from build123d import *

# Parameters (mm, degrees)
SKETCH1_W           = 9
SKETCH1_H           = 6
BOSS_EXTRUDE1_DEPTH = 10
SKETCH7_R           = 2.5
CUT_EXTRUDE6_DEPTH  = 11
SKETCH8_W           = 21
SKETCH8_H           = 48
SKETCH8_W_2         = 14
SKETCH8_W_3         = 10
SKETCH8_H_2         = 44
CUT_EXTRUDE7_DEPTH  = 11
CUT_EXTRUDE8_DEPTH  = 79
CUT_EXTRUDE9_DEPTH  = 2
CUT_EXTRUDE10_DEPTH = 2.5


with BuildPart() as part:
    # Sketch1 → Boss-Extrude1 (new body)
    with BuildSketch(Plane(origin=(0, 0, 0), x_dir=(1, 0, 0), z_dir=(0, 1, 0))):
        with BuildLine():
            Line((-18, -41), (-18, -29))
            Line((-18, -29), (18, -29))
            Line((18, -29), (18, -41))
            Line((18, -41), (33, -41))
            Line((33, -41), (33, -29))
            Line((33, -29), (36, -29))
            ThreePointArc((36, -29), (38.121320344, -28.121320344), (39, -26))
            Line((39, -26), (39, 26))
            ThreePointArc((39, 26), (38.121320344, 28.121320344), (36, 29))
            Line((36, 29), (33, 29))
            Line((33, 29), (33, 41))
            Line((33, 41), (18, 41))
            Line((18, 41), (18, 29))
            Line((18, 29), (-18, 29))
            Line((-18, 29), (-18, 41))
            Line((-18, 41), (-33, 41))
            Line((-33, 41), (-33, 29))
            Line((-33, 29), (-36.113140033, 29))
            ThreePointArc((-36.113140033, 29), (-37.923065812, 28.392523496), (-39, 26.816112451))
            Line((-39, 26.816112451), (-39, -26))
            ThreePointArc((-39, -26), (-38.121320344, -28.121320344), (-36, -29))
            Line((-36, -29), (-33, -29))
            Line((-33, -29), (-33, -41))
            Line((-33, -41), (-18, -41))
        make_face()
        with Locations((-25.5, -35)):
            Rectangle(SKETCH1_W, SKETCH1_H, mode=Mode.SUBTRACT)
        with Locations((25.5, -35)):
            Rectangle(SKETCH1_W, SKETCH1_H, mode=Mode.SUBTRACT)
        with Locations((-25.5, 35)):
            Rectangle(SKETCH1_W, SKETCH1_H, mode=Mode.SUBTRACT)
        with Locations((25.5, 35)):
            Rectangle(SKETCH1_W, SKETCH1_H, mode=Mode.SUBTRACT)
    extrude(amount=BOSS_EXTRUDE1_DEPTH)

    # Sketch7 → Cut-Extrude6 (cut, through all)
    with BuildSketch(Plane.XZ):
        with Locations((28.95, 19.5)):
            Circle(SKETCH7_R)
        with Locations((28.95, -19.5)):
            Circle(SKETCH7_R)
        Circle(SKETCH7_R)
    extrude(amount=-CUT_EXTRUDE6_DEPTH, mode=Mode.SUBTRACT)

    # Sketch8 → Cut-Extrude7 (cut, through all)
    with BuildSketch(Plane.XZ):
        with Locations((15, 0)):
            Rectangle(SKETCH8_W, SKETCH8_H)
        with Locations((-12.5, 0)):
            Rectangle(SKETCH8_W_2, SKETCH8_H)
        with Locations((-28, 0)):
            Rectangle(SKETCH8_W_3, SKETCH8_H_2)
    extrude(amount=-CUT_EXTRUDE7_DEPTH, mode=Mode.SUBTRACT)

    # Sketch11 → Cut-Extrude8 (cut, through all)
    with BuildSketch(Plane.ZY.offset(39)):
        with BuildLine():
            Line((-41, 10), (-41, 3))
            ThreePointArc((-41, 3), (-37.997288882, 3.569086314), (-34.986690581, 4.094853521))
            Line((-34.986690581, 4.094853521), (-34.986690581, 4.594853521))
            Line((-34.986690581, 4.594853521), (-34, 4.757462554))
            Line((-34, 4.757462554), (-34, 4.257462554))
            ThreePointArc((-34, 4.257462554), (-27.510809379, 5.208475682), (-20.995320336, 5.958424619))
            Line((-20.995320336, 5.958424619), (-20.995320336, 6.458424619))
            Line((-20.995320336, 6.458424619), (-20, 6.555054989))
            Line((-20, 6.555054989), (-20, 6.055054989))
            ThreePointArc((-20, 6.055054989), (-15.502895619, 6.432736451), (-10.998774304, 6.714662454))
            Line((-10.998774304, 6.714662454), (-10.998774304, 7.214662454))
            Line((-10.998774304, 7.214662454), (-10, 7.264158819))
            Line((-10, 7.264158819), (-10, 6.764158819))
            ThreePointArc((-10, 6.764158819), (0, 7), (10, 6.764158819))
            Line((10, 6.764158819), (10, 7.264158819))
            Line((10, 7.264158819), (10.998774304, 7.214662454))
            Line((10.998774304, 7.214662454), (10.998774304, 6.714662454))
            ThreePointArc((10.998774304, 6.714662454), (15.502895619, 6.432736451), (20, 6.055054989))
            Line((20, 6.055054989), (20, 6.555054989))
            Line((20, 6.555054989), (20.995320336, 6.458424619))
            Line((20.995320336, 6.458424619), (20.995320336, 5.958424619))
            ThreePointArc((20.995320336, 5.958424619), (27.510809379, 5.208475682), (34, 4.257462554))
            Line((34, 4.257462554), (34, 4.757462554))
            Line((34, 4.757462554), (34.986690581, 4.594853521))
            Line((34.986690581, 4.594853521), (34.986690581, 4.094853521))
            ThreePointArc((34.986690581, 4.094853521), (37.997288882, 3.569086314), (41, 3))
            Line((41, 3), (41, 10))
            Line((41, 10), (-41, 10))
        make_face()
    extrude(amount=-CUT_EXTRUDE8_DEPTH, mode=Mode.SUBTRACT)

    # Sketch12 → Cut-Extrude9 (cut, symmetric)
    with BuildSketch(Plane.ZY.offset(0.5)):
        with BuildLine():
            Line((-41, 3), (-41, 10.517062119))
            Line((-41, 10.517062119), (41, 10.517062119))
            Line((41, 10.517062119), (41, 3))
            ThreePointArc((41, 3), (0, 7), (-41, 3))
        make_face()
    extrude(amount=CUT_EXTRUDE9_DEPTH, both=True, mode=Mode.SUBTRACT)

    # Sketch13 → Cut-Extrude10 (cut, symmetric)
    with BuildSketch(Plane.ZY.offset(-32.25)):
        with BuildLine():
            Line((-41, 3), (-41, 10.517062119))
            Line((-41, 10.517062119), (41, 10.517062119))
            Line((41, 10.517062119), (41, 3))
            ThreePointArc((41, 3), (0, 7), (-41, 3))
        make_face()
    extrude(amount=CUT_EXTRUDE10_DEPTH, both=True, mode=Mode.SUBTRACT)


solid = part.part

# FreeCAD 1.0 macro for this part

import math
import FreeCAD as App
import Part
import Sketcher
Q = App.Units.Quantity


def add_polygon(sketch, points):
    """Adds a closed chain of lines whose ends are joined by coincident constraints."""
    first, n = sketch.GeometryCount, len(points)
    for a, b in zip(points, points[1:] + points[:1]):
        sketch.addGeometry(Part.LineSegment(App.Vector(*a, 0), App.Vector(*b, 0)), False)
    for i in range(n):
        sketch.addConstraint(Sketcher.Constraint("Coincident", first + i, 2, first + (i + 1) % n, 1))

doc = App.newDocument("Part")
params = doc.addObject("Spreadsheet::Sheet", "Params")
for row, (alias, value) in enumerate([
    ("sketch1_radius", "3 mm"),
    ("sketch1_width", "36 mm"),
    ("sketch1_width2", "15 mm"),
    ("sketch1_width3", "3 mm"),
    ("sketch1_width4", "9 mm"),
    ("pad1_length", "10 mm"),
    ("sketch2_diameter", "5 mm"),
    ("sketch3_width", "21 mm"),
    ("sketch3_width2", "14 mm"),
    ("sketch3_width3", "10 mm"),
    ("sketch3_height", "48 mm"),
    ("sketch3_height2", "44 mm"),
    ("sketch4_width", "7 mm"),
    ("sketch4_height", "82 mm"),
    ("sketch4_length", "1 mm"),
    ("sketch4_width2", "0.5 mm"),
    ("sketch5_height", "82 mm"),
    ("pocket4_length", "4 mm"),
    ("sketch6_height", "82 mm"),
    ("pocket5_length", "5 mm"),
], start=1):
    params.set(f"A{row}", alias)
    params.set(f"B{row}", "=" + value)
    params.setAlias(f"B{row}", alias)

body = doc.addObject("PartDesign::Body", "Body")

# Sketch on XZ plane
sketch1 = body.newObject("Sketcher::SketchObject", "Sketch")
sketch1.AttachmentSupport = (doc.getObject("XZ_Plane"), [""])
sketch1.MapMode = "FlatFace"
sketch1.addGeometry(Part.LineSegment(App.Vector(-18, 41, 0), App.Vector(-18, 29, 0)), False)  # 0
sketch1.addGeometry(Part.LineSegment(App.Vector(-18, 29, 0), App.Vector(18, 29, 0)), False)  # 1
sketch1.addGeometry(Part.LineSegment(App.Vector(18, 29, 0), App.Vector(18, 41, 0)), False)  # 2
sketch1.addGeometry(Part.LineSegment(App.Vector(18, 41, 0), App.Vector(33, 41, 0)), False)  # 3
sketch1.addGeometry(Part.LineSegment(App.Vector(33, 41, 0), App.Vector(33, 29, 0)), False)  # 4
sketch1.addGeometry(Part.LineSegment(App.Vector(33, 29, 0), App.Vector(36, 29, 0)), False)  # 5
sketch1.addGeometry(Part.ArcOfCircle(Part.Circle(App.Vector(36, 26, 0), App.Vector(0, 0, 1), 3), math.radians(0), math.radians(90)), False)  # 6
sketch1.addGeometry(Part.LineSegment(App.Vector(39, 26, 0), App.Vector(39, -26, 0)), False)  # 7
sketch1.addGeometry(Part.ArcOfCircle(Part.Circle(App.Vector(36, -26, 0), App.Vector(0, 0, 1), 3), math.radians(-90), math.radians(0)), False)  # 8
sketch1.addGeometry(Part.LineSegment(App.Vector(36, -29, 0), App.Vector(33, -29, 0)), False)  # 9
sketch1.addGeometry(Part.LineSegment(App.Vector(33, -29, 0), App.Vector(33, -41, 0)), False)  # 10
sketch1.addGeometry(Part.LineSegment(App.Vector(33, -41, 0), App.Vector(18, -41, 0)), False)  # 11
sketch1.addGeometry(Part.LineSegment(App.Vector(18, -41, 0), App.Vector(18, -29, 0)), False)  # 12
sketch1.addGeometry(Part.LineSegment(App.Vector(18, -29, 0), App.Vector(-18, -29, 0)), False)  # 13
sketch1.addGeometry(Part.LineSegment(App.Vector(-18, -29, 0), App.Vector(-18, -41, 0)), False)  # 14
sketch1.addGeometry(Part.LineSegment(App.Vector(-18, -41, 0), App.Vector(-33, -41, 0)), False)  # 15
sketch1.addGeometry(Part.LineSegment(App.Vector(-33, -41, 0), App.Vector(-33, -29, 0)), False)  # 16
sketch1.addGeometry(Part.LineSegment(App.Vector(-33, -29, 0), App.Vector(-36.1, -29, 0)), False)  # 17
sketch1.addGeometry(Part.ArcOfCircle(Part.Circle(App.Vector(-36.1, -26, 0), App.Vector(0, 0, 1), 3), math.radians(-164), math.radians(-90)), False)  # 18
sketch1.addGeometry(Part.LineSegment(App.Vector(-39, -26.8, 0), App.Vector(-39, 26, 0)), False)  # 19
sketch1.addGeometry(Part.ArcOfCircle(Part.Circle(App.Vector(-36, 26, 0), App.Vector(0, 0, 1), 3), math.radians(90), math.radians(180)), False)  # 20
sketch1.addGeometry(Part.LineSegment(App.Vector(-36, 29, 0), App.Vector(-33, 29, 0)), False)  # 21
sketch1.addGeometry(Part.LineSegment(App.Vector(-33, 29, 0), App.Vector(-33, 41, 0)), False)  # 22
sketch1.addGeometry(Part.LineSegment(App.Vector(-33, 41, 0), App.Vector(-18, 41, 0)), False)  # 23
add_polygon(sketch1, [(-21, 38), (-30, 38), (-30, 32), (-21, 32)])  # lines 24-27
add_polygon(sketch1, [(30, 38), (21, 38), (21, 32), (30, 32)])  # lines 28-31
add_polygon(sketch1, [(-21, -32), (-30, -32), (-30, -38), (-21, -38)])  # lines 32-35
add_polygon(sketch1, [(30, -32), (21, -32), (21, -38), (30, -38)])  # lines 36-39
sketch1.addConstraint(Sketcher.Constraint("Coincident", 0, 2, 1, 1))
sketch1.addConstraint(Sketcher.Constraint("Coincident", 1, 2, 2, 1))
sketch1.addConstraint(Sketcher.Constraint("Coincident", 2, 2, 3, 1))
sketch1.addConstraint(Sketcher.Constraint("Coincident", 3, 2, 4, 1))
sketch1.addConstraint(Sketcher.Constraint("Coincident", 4, 2, 5, 1))
sketch1.addConstraint(Sketcher.Constraint("Tangent", 5, 2, 6, 2))
sketch1.addConstraint(Sketcher.Constraint("Tangent", 6, 1, 7, 1))
sketch1.addConstraint(Sketcher.Constraint("Tangent", 7, 2, 8, 2))
sketch1.addConstraint(Sketcher.Constraint("Tangent", 8, 1, 9, 1))
sketch1.addConstraint(Sketcher.Constraint("Coincident", 9, 2, 10, 1))
sketch1.addConstraint(Sketcher.Constraint("Coincident", 10, 2, 11, 1))
sketch1.addConstraint(Sketcher.Constraint("Coincident", 11, 2, 12, 1))
sketch1.addConstraint(Sketcher.Constraint("Coincident", 12, 2, 13, 1))
sketch1.addConstraint(Sketcher.Constraint("Coincident", 13, 2, 14, 1))
sketch1.addConstraint(Sketcher.Constraint("Coincident", 14, 2, 15, 1))
sketch1.addConstraint(Sketcher.Constraint("Coincident", 15, 2, 16, 1))
sketch1.addConstraint(Sketcher.Constraint("Coincident", 16, 2, 17, 1))
sketch1.addConstraint(Sketcher.Constraint("Tangent", 17, 2, 18, 2))
sketch1.addConstraint(Sketcher.Constraint("Coincident", 18, 1, 19, 1))
sketch1.addConstraint(Sketcher.Constraint("Tangent", 19, 2, 20, 2))
sketch1.addConstraint(Sketcher.Constraint("Tangent", 20, 1, 21, 1))
sketch1.addConstraint(Sketcher.Constraint("Coincident", 21, 2, 22, 1))
sketch1.addConstraint(Sketcher.Constraint("Coincident", 22, 2, 23, 1))
sketch1.addConstraint(Sketcher.Constraint("Coincident", 23, 2, 0, 1))
sketch1.addConstraint(Sketcher.Constraint("Vertical", 0))
sketch1.addConstraint(Sketcher.Constraint("Horizontal", 1))
sketch1.addConstraint(Sketcher.Constraint("Vertical", 2))
sketch1.addConstraint(Sketcher.Constraint("Horizontal", 3))
sketch1.addConstraint(Sketcher.Constraint("Vertical", 4))
sketch1.addConstraint(Sketcher.Constraint("Horizontal", 5))
sketch1.addConstraint(Sketcher.Constraint("Vertical", 7))
sketch1.addConstraint(Sketcher.Constraint("Horizontal", 9))
sketch1.addConstraint(Sketcher.Constraint("Vertical", 10))
sketch1.addConstraint(Sketcher.Constraint("Horizontal", 11))
sketch1.addConstraint(Sketcher.Constraint("Vertical", 12))
sketch1.addConstraint(Sketcher.Constraint("Horizontal", 13))
sketch1.addConstraint(Sketcher.Constraint("Vertical", 14))
sketch1.addConstraint(Sketcher.Constraint("Horizontal", 15))
sketch1.addConstraint(Sketcher.Constraint("Vertical", 16))
sketch1.addConstraint(Sketcher.Constraint("Horizontal", 17))
sketch1.addConstraint(Sketcher.Constraint("Vertical", 19))
sketch1.addConstraint(Sketcher.Constraint("Horizontal", 21))
sketch1.addConstraint(Sketcher.Constraint("Vertical", 22))
sketch1.addConstraint(Sketcher.Constraint("Horizontal", 23))
sketch1.addConstraint(Sketcher.Constraint("Horizontal", 24))
sketch1.addConstraint(Sketcher.Constraint("Vertical", 25))
sketch1.addConstraint(Sketcher.Constraint("Horizontal", 26))
sketch1.addConstraint(Sketcher.Constraint("Vertical", 27))
sketch1.addConstraint(Sketcher.Constraint("Horizontal", 28))
sketch1.addConstraint(Sketcher.Constraint("Vertical", 29))
sketch1.addConstraint(Sketcher.Constraint("Horizontal", 30))
sketch1.addConstraint(Sketcher.Constraint("Vertical", 31))
sketch1.addConstraint(Sketcher.Constraint("Horizontal", 32))
sketch1.addConstraint(Sketcher.Constraint("Vertical", 33))
sketch1.addConstraint(Sketcher.Constraint("Horizontal", 34))
sketch1.addConstraint(Sketcher.Constraint("Vertical", 35))
sketch1.addConstraint(Sketcher.Constraint("Horizontal", 36))
sketch1.addConstraint(Sketcher.Constraint("Vertical", 37))
sketch1.addConstraint(Sketcher.Constraint("Horizontal", 38))
sketch1.addConstraint(Sketcher.Constraint("Vertical", 39))
sketch1.addConstraint(Sketcher.Constraint("Equal", 6, 8))
sketch1.addConstraint(Sketcher.Constraint("Equal", 8, 18))
sketch1.addConstraint(Sketcher.Constraint("Equal", 18, 20))
sketch1.addConstraint(Sketcher.Constraint("Symmetric", 8, 3, 20, 3, -1, 1))
sketch1.addConstraint(Sketcher.Constraint("Symmetric", 0, 2, 12, 2, -1, 1))
sketch1.addConstraint(Sketcher.Constraint("Symmetric", 2, 2, 14, 2, -1, 1))
sketch1.addConstraint(Sketcher.Constraint("Symmetric", 4, 2, 16, 2, -1, 1))
sketch1.addConstraint(Sketcher.Constraint("Symmetric", 10, 2, 22, 2, -1, 1))
sketch1.addConstraint(Sketcher.Constraint("Symmetric", 30, 2, 32, 2, -1, 1))
sketch1.addConstraint(Sketcher.Constraint("Symmetric", 28, 2, 34, 2, -1, 1))
sketch1.addConstraint(Sketcher.Constraint("Symmetric", 26, 2, 36, 2, -1, 1))
sketch1.addConstraint(Sketcher.Constraint("Symmetric", 24, 2, 38, 2, -1, 1))
sketch1.addConstraint(Sketcher.Constraint("Symmetric", 11, 2, 14, 2, -2))
sketch1.addConstraint(Sketcher.Constraint("Symmetric", 9, 2, 16, 2, -2))
sketch1.addConstraint(Sketcher.Constraint("Symmetric", 27, 2, 28, 2, -2))
sketch1.addConstraint(Sketcher.Constraint("Symmetric", 25, 2, 30, 2, -2))
sketch1.addConstraint(Sketcher.Constraint("Horizontal", 1, 2, 4, 2))
sketch1.addConstraint(Sketcher.Constraint("Radius", 6, Q("3 mm")))
sketch1.addConstraint(Sketcher.Constraint("DistanceX", 1, 1, 1, 2, Q("36 mm")))
sketch1.addConstraint(Sketcher.Constraint("DistanceX", 3, 1, 3, 2, Q("15 mm")))
sketch1.addConstraint(Sketcher.Constraint("DistanceX", 5, 1, 5, 2, Q("3 mm")))
sketch1.addConstraint(Sketcher.Constraint("DistanceX", 24, 2, 24, 1, Q("9 mm")))
sketch1.addConstraint(Sketcher.Constraint("DistanceY", 0, 2, 0, 1, Q("12 mm")))
sketch1.addConstraint(Sketcher.Constraint("DistanceY", 7, 2, 7, 1, Q("52 mm")))
sketch1.addConstraint(Sketcher.Constraint("DistanceY", 25, 2, 25, 1, Q("6 mm")))
sketch1.addConstraint(Sketcher.Constraint("DistanceX", 24, 2, -1, 1, Q("30 mm")))
sketch1.addConstraint(Sketcher.Constraint("DistanceY", -1, 1, 24, 2, Q("38 mm")))
sketch1.addConstraint(Sketcher.Constraint("DistanceX", 17, 2, 17, 1, Q("3.11314 mm")))
sketch1.setExpression("Constraints[93]", "Params.sketch1_radius")
sketch1.setExpression("Constraints[94]", "Params.sketch1_width")
sketch1.setExpression("Constraints[95]", "Params.sketch1_width2")
sketch1.setExpression("Constraints[96]", "Params.sketch1_width3")
sketch1.setExpression("Constraints[97]", "Params.sketch1_width4")
pad1 = body.newObject("PartDesign::Pad", "Pad")
pad1.Profile = sketch1
pad1.setExpression("Length", "Params.pad1_length")
pad1.Reversed = True

# Sketch on XZ plane
sketch2 = body.newObject("Sketcher::SketchObject", "Sketch001")
sketch2.AttachmentSupport = (doc.getObject("XZ_Plane"), [""])
sketch2.MapMode = "FlatFace"
sketch2.addGeometry(Part.Circle(App.Vector(28.9, 19.5, 0), App.Vector(0, 0, 1), 2.5), False)
sketch2.addGeometry(Part.Circle(App.Vector(28.9, -19.5, 0), App.Vector(0, 0, 1), 2.5), False)
sketch2.addGeometry(Part.Circle(App.Vector(0, 0, 0), App.Vector(0, 0, 1), 2.5), False)
sketch2.addConstraint(Sketcher.Constraint("Coincident", 2, 3, -1, 1))
sketch2.addConstraint(Sketcher.Constraint("Equal", 0, 1))
sketch2.addConstraint(Sketcher.Constraint("Equal", 1, 2))
sketch2.addConstraint(Sketcher.Constraint("Symmetric", 0, 3, 1, 3, -1))
sketch2.addConstraint(Sketcher.Constraint("Diameter", 0, Q("5 mm")))
sketch2.addConstraint(Sketcher.Constraint("DistanceY", 1, 3, 0, 3, Q("39 mm")))
sketch2.addConstraint(Sketcher.Constraint("DistanceX", -1, 1, 0, 3, Q("28.95 mm")))
sketch2.setExpression("Constraints[4]", "Params.sketch2_diameter")
pocket1 = body.newObject("PartDesign::Pocket", "Pocket")
pocket1.Profile = sketch2
pocket1.Type = "ThroughAll"

# Sketch on XZ plane
sketch3 = body.newObject("Sketcher::SketchObject", "Sketch002")
sketch3.AttachmentSupport = (doc.getObject("XZ_Plane"), [""])
sketch3.MapMode = "FlatFace"
add_polygon(sketch3, [(4, 24), (4, -24), (26, -24), (26, 24)])  # lines 0-3
add_polygon(sketch3, [(-20, 24), (-20, -24), (-6, -24), (-6, 24)])  # lines 4-7
add_polygon(sketch3, [(-33, 22), (-33, -22), (-23, -22), (-23, 22)])  # lines 8-11
sketch3.addConstraint(Sketcher.Constraint("Vertical", 0))
sketch3.addConstraint(Sketcher.Constraint("Horizontal", 1))
sketch3.addConstraint(Sketcher.Constraint("Vertical", 2))
sketch3.addConstraint(Sketcher.Constraint("Horizontal", 3))
sketch3.addConstraint(Sketcher.Constraint("Vertical", 4))
sketch3.addConstraint(Sketcher.Constraint("Horizontal", 5))
sketch3.addConstraint(Sketcher.Constraint("Vertical", 6))
sketch3.addConstraint(Sketcher.Constraint("Horizontal", 7))
sketch3.addConstraint(Sketcher.Constraint("Vertical", 8))
sketch3.addConstraint(Sketcher.Constraint("Horizontal", 9))
sketch3.addConstraint(Sketcher.Constraint("Vertical", 10))
sketch3.addConstraint(Sketcher.Constraint("Horizontal", 11))
sketch3.addConstraint(Sketcher.Constraint("Horizontal", 1, 2, 4, 2))
sketch3.addConstraint(Sketcher.Constraint("Horizontal", 3, 2, 6, 2))
sketch3.addConstraint(Sketcher.Constraint("DistanceX", 1, 1, 1, 2, Q("21 mm")))
sketch3.addConstraint(Sketcher.Constraint("DistanceX", 5, 1, 5, 2, Q("14 mm")))
sketch3.addConstraint(Sketcher.Constraint("DistanceX", 9, 1, 9, 2, Q("10 mm")))
sketch3.addConstraint(Sketcher.Constraint("DistanceY", 0, 2, 0, 1, Q("48 mm")))
sketch3.addConstraint(Sketcher.Constraint("DistanceY", 8, 2, 8, 1, Q("44 mm")))
sketch3.addConstraint(Sketcher.Constraint("DistanceY", 0, 2, -1, 1, Q("24 mm")))
sketch3.addConstraint(Sketcher.Constraint("DistanceX", 8, 2, -1, 1, Q("33 mm")))
sketch3.addConstraint(Sketcher.Constraint("DistanceY", 8, 2, -1, 1, Q("22 mm")))
sketch3.addConstraint(Sketcher.Constraint("DistanceX", 4, 2, 0, 2, Q("24 mm")))
sketch3.addConstraint(Sketcher.Constraint("DistanceX", -1, 1, 0, 2, Q("4.5 mm")))
sketch3.setExpression("Constraints[26]", "Params.sketch3_width")
sketch3.setExpression("Constraints[27]", "Params.sketch3_width2")
sketch3.setExpression("Constraints[28]", "Params.sketch3_width3")
sketch3.setExpression("Constraints[29]", "Params.sketch3_height")
sketch3.setExpression("Constraints[30]", "Params.sketch3_height2")
pocket2 = body.newObject("PartDesign::Pocket", "Pocket001")
pocket2.Profile = sketch3
pocket2.Type = "ThroughAll"

# Sketch on YZ plane
sketch4 = body.newObject("Sketcher::SketchObject", "Sketch003")
sketch4.AttachmentSupport = (doc.getObject("YZ_Plane"), [""])
sketch4.MapMode = "FlatFace"
sketch4.AttachmentOffset = App.Placement(App.Vector(0, 0, -39), App.Rotation())
sketch4.addGeometry(Part.LineSegment(App.Vector(10, -41, 0), App.Vector(3, -41, 0)), False)
sketch4.addGeometry(Part.ArcOfCircle(Part.Circle(App.Vector(-205.1, 0, 0), App.Vector(0, 0, 1), 212.1), math.radians(-11.14), math.radians(-9.49)), False)
sketch4.addGeometry(Part.LineSegment(App.Vector(4.1, -35, 0), App.Vector(4.6, -35, 0)), False)
sketch4.addGeometry(Part.LineSegment(App.Vector(4.6, -35, 0), App.Vector(4.8, -34, 0)), False)
sketch4.addGeometry(Part.LineSegment(App.Vector(4.8, -34, 0), App.Vector(4.3, -34, 0)), False)
sketch4.addGeometry(Part.ArcOfCircle(Part.Circle(App.Vector(-205.1, 0, 0), App.Vector(0, 0, 1), 212.1), math.radians(-9.22), math.radians(-5.68)), False)
sketch4.addGeometry(Part.LineSegment(App.Vector(6, -21, 0), App.Vector(6.5, -21, 0)), False)
sketch4.addGeometry(Part.LineSegment(App.Vector(6.5, -21, 0), App.Vector(6.6, -20, 0)), False)
sketch4.addGeometry(Part.LineSegment(App.Vector(6.6, -20, 0), App.Vector(6.1, -20, 0)), False)
sketch4.addGeometry(Part.ArcOfCircle(Part.Circle(App.Vector(-205.1, 0, 0), App.Vector(0, 0, 1), 212.1), math.radians(-5.41), math.radians(-2.97)), False)
sketch4.addGeometry(Part.LineSegment(App.Vector(6.7, -11, 0), App.Vector(7.2, -11, 0)), False)
sketch4.addGeometry(Part.LineSegment(App.Vector(7.2, -11, 0), App.Vector(7.3, -10, 0)), False)
sketch4.addGeometry(Part.LineSegment(App.Vector(7.3, -10, 0), App.Vector(6.8, -10, 0)), False)
sketch4.addGeometry(Part.ArcOfCircle(Part.Circle(App.Vector(-205.1, 0, 0), App.Vector(0, 0, 1), 212.1), math.radians(-2.7), math.radians(2.7)), False)
sketch4.addGeometry(Part.LineSegment(App.Vector(6.8, 10, 0), App.Vector(7.3, 10, 0)), False)
sketch4.addGeometry(Part.LineSegment(App.Vector(7.3, 10, 0), App.Vector(7.2, 11, 0)), False)
sketch4.addGeometry(Part.LineSegment(App.Vector(7.2, 11, 0), App.Vector(6.7, 11, 0)), False)
sketch4.addGeometry(Part.ArcOfCircle(Part.Circle(App.Vector(-205.1, 0, 0), App.Vector(0, 0, 1), 212.1), math.radians(2.97), math.radians(5.41)), False)
sketch4.addGeometry(Part.LineSegment(App.Vector(6.1, 20, 0), App.Vector(6.6, 20, 0)), False)
sketch4.addGeometry(Part.LineSegment(App.Vector(6.6, 20, 0), App.Vector(6.5, 21, 0)), False)
sketch4.addGeometry(Part.LineSegment(App.Vector(6.5, 21, 0), App.Vector(6, 21, 0)), False)
sketch4.addGeometry(Part.ArcOfCircle(Part.Circle(App.Vector(-205.1, 0, 0), App.Vector(0, 0, 1), 212.1), math.radians(5.68), math.radians(9.22)), False)
sketch4.addGeometry(Part.LineSegment(App.Vector(4.3, 34, 0), App.Vector(4.8, 34, 0)), False)
sketch4.addGeometry(Part.LineSegment(App.Vector(4.8, 34, 0), App.Vector(4.6, 35, 0)), False)
sketch4.addGeometry(Part.LineSegment(App.Vector(4.6, 35, 0), App.Vector(4.1, 35, 0)), False)
sketch4.addGeometry(Part.ArcOfCircle(Part.Circle(App.Vector(-205.1, 0, 0), App.Vector(0, 0, 1), 212.1), math.radians(9.49), math.radians(11.14)), False)
sketch4.addGeometry(Part.LineSegment(App.Vector(3, 41, 0), App.Vector(10, 41, 0)), False)
sketch4.addGeometry(Part.LineSegment(App.Vector(10, 41, 0), App.Vector(10, -41, 0)), False)
sketch4.addConstraint(Sketcher.Constraint("Coincident", 0, 2, 1, 1))
sketch4.addConstraint(Sketcher.Constraint("Coincident", 1, 2, 2, 1))
sketch4.addConstraint(Sketcher.Constraint("Coincident", 2, 2, 3, 1))
sketch4.addConstraint(Sketcher.Constraint("Coincident", 3, 2, 4, 1))
sketch4.addConstraint(Sketcher.Constraint("Coincident", 4, 2, 5, 1))
sketch4.addConstraint(Sketcher.Constraint("Coincident", 5, 2, 6, 1))
sketch4.addConstraint(Sketcher.Constraint("Coincident", 6, 2, 7, 1))
sketch4.addConstraint(Sketcher.Constraint("Coincident", 7, 2, 8, 1))
sketch4.addConstraint(Sketcher.Constraint("Coincident", 8, 2, 9, 1))
sketch4.addConstraint(Sketcher.Constraint("Coincident", 9, 2, 10, 1))
sketch4.addConstraint(Sketcher.Constraint("Coincident", 10, 2, 11, 1))
sketch4.addConstraint(Sketcher.Constraint("Coincident", 11, 2, 12, 1))
sketch4.addConstraint(Sketcher.Constraint("Coincident", 12, 2, 13, 1))
sketch4.addConstraint(Sketcher.Constraint("Coincident", 13, 2, 14, 1))
sketch4.addConstraint(Sketcher.Constraint("Coincident", 14, 2, 15, 1))
sketch4.addConstraint(Sketcher.Constraint("Coincident", 15, 2, 16, 1))
sketch4.addConstraint(Sketcher.Constraint("Coincident", 16, 2, 17, 1))
sketch4.addConstraint(Sketcher.Constraint("Coincident", 17, 2, 18, 1))
sketch4.addConstraint(Sketcher.Constraint("Coincident", 18, 2, 19, 1))
sketch4.addConstraint(Sketcher.Constraint("Coincident", 19, 2, 20, 1))
sketch4.addConstraint(Sketcher.Constraint("Coincident", 20, 2, 21, 1))
sketch4.addConstraint(Sketcher.Constraint("Coincident", 21, 2, 22, 1))
sketch4.addConstraint(Sketcher.Constraint("Coincident", 22, 2, 23, 1))
sketch4.addConstraint(Sketcher.Constraint("Coincident", 23, 2, 24, 1))
sketch4.addConstraint(Sketcher.Constraint("Coincident", 24, 2, 25, 1))
sketch4.addConstraint(Sketcher.Constraint("Coincident", 25, 2, 26, 1))
sketch4.addConstraint(Sketcher.Constraint("Coincident", 26, 2, 27, 1))
sketch4.addConstraint(Sketcher.Constraint("Coincident", 27, 2, 0, 1))
sketch4.addConstraint(Sketcher.Constraint("Horizontal", 0))
sketch4.addConstraint(Sketcher.Constraint("Horizontal", 2))
sketch4.addConstraint(Sketcher.Constraint("Horizontal", 4))
sketch4.addConstraint(Sketcher.Constraint("Horizontal", 6))
sketch4.addConstraint(Sketcher.Constraint("Horizontal", 8))
sketch4.addConstraint(Sketcher.Constraint("Horizontal", 10))
sketch4.addConstraint(Sketcher.Constraint("Horizontal", 12))
sketch4.addConstraint(Sketcher.Constraint("Horizontal", 14))
sketch4.addConstraint(Sketcher.Constraint("Horizontal", 16))
sketch4.addConstraint(Sketcher.Constraint("Horizontal", 18))
sketch4.addConstraint(Sketcher.Constraint("Horizontal", 20))
sketch4.addConstraint(Sketcher.Constraint("Horizontal", 22))
sketch4.addConstraint(Sketcher.Constraint("Horizontal", 24))
sketch4.addConstraint(Sketcher.Constraint("Horizontal", 26))
sketch4.addConstraint(Sketcher.Constraint("Vertical", 27))
sketch4.addConstraint(Sketcher.Constraint("Coincident", 5, 3, 1, 3))
sketch4.addConstraint(Sketcher.Constraint("Coincident", 9, 3, 1, 3))
sketch4.addConstraint(Sketcher.Constraint("Coincident", 13, 3, 1, 3))
sketch4.addConstraint(Sketcher.Constraint("Coincident", 17, 3, 1, 3))
sketch4.addConstraint(Sketcher.Constraint("Coincident", 21, 3, 1, 3))
sketch4.addConstraint(Sketcher.Constraint("Coincident", 25, 3, 1, 3))
sketch4.addConstraint(Sketcher.Constraint("Equal", 9, 13))
sketch4.addConstraint(Sketcher.Constraint("Equal", 13, 17))
sketch4.addConstraint(Sketcher.Constraint("Equal", 13, 21))
sketch4.addConstraint(Sketcher.Constraint("Equal", 1, 25))
sketch4.addConstraint(Sketcher.Constraint("Symmetric", 12, 2, 13, 2, -1))
sketch4.addConstraint(Sketcher.Constraint("Symmetric", 10, 2, 15, 2, -1))
sketch4.addConstraint(Sketcher.Constraint("Symmetric", 7, 2, 18, 2, -1))
sketch4.addConstraint(Sketcher.Constraint("Symmetric", 6, 2, 19, 2, -1))
sketch4.addConstraint(Sketcher.Constraint("Symmetric", 4, 2, 21, 2, -1))
sketch4.addConstraint(Sketcher.Constraint("Symmetric", 2, 2, 23, 2, -1))
sketch4.addConstraint(Sketcher.Constraint("Vertical", 11, 2, 14, 2))
sketch4.addConstraint(Sketcher.Constraint("Vertical", 3, 2, 22, 2))
sketch4.addConstraint(Sketcher.Constraint("Vertical", 0, 2, 25, 2))
sketch4.addConstraint(Sketcher.Constraint("Equal", 2, 4))
sketch4.addConstraint(Sketcher.Constraint("Equal", 4, 6))
sketch4.addConstraint(Sketcher.Constraint("Equal", 6, 8))
sketch4.addConstraint(Sketcher.Constraint("Equal", 8, 10))
sketch4.addConstraint(Sketcher.Constraint("Equal", 10, 12))
sketch4.addConstraint(Sketcher.Constraint("Equal", 3, 7))
sketch4.addConstraint(Sketcher.Constraint("Equal", 7, 11))
sketch4.addConstraint(Sketcher.Constraint("DistanceX", 0, 2, 0, 1, Q("7 mm")))
sketch4.addConstraint(Sketcher.Constraint("DistanceY", 27, 2, 27, 1, Q("82 mm")))
sketch4.addConstraint(Sketcher.Constraint("Distance", 3, Q("1 mm")))
sketch4.addConstraint(Sketcher.Constraint("DistanceX", 2, 1, 2, 2, Q("0.5 mm")))
sketch4.addConstraint(Sketcher.Constraint("DistanceX", -1, 1, 0, 2, Q("3 mm")))
sketch4.addConstraint(Sketcher.Constraint("DistanceY", 3, 2, -1, 1, Q("34 mm")))
sketch4.addConstraint(Sketcher.Constraint("DistanceY", 7, 2, -1, 1, Q("20 mm")))
sketch4.addConstraint(Sketcher.Constraint("DistanceY", 11, 2, -1, 1, Q("10 mm")))
sketch4.addConstraint(Sketcher.Constraint("Radius", 5, Q("212.124999 mm")))
sketch4.addConstraint(Sketcher.Constraint("DistanceX", 5, 3, -1, 1, Q("205.124999 mm")))
sketch4.setExpression("Constraints[69]", "Params.sketch4_width")
sketch4.setExpression("Constraints[70]", "Params.sketch4_height")
sketch4.setExpression("Constraints[71]", "Params.sketch4_length")
sketch4.setExpression("Constraints[72]", "Params.sketch4_width2")
pocket3 = body.newObject("PartDesign::Pocket", "Pocket002")
pocket3.Profile = sketch4
pocket3.Type = "ThroughAll"
pocket3.Reversed = True

# Sketch on YZ plane
sketch5 = body.newObject("Sketcher::SketchObject", "Sketch004")
sketch5.AttachmentSupport = (doc.getObject("YZ_Plane"), [""])
sketch5.MapMode = "FlatFace"
sketch5.AttachmentOffset = App.Placement(App.Vector(0, 0, -0.5), App.Rotation())
sketch5.addGeometry(Part.LineSegment(App.Vector(11, -41, 0), App.Vector(3, -41, 0)), False)
sketch5.addGeometry(Part.ArcOfCircle(Part.Circle(App.Vector(-205, 0, 0), App.Vector(0, 0, 1), 212), math.radians(-11), math.radians(11)), False)
sketch5.addGeometry(Part.LineSegment(App.Vector(3, 41, 0), App.Vector(11, 41, 0)), False)
sketch5.addGeometry(Part.LineSegment(App.Vector(11, 41, 0), App.Vector(11, -41, 0)), False)
sketch5.addConstraint(Sketcher.Constraint("Coincident", 0, 2, 1, 1))
sketch5.addConstraint(Sketcher.Constraint("Coincident", 1, 2, 2, 1))
sketch5.addConstraint(Sketcher.Constraint("Coincident", 2, 2, 3, 1))
sketch5.addConstraint(Sketcher.Constraint("Coincident", 3, 2, 0, 1))
sketch5.addConstraint(Sketcher.Constraint("Horizontal", 0))
sketch5.addConstraint(Sketcher.Constraint("Horizontal", 2))
sketch5.addConstraint(Sketcher.Constraint("Vertical", 3))
sketch5.addConstraint(Sketcher.Constraint("Symmetric", 0, 2, 1, 2, -1))
sketch5.addConstraint(Sketcher.Constraint("DistanceY", 3, 2, 3, 1, Q("82 mm")))
sketch5.addConstraint(Sketcher.Constraint("DistanceX", -1, 1, 0, 2, Q("3 mm")))
sketch5.addConstraint(Sketcher.Constraint("Radius", 1, Q("212.125 mm")))
sketch5.addConstraint(Sketcher.Constraint("DistanceX", 0, 2, 0, 1, Q("7.517062 mm")))
sketch5.setExpression("Constraints[8]", "Params.sketch5_height")
pocket4 = body.newObject("PartDesign::Pocket", "Pocket003")
pocket4.Profile = sketch5
pocket4.setExpression("Length", "Params.pocket4_length")
pocket4.Midplane = True

# Sketch on YZ plane
sketch6 = body.newObject("Sketcher::SketchObject", "Sketch005")
sketch6.AttachmentSupport = (doc.getObject("YZ_Plane"), [""])
sketch6.MapMode = "FlatFace"
sketch6.AttachmentOffset = App.Placement(App.Vector(0, 0, 32.25), App.Rotation())
sketch6.addGeometry(Part.LineSegment(App.Vector(11, -41, 0), App.Vector(3, -41, 0)), False)
sketch6.addGeometry(Part.ArcOfCircle(Part.Circle(App.Vector(-205, 0, 0), App.Vector(0, 0, 1), 212), math.radians(-11), math.radians(11)), False)
sketch6.addGeometry(Part.LineSegment(App.Vector(3, 41, 0), App.Vector(11, 41, 0)), False)
sketch6.addGeometry(Part.LineSegment(App.Vector(11, 41, 0), App.Vector(11, -41, 0)), False)
sketch6.addConstraint(Sketcher.Constraint("Coincident", 0, 2, 1, 1))
sketch6.addConstraint(Sketcher.Constraint("Coincident", 1, 2, 2, 1))
sketch6.addConstraint(Sketcher.Constraint("Coincident", 2, 2, 3, 1))
sketch6.addConstraint(Sketcher.Constraint("Coincident", 3, 2, 0, 1))
sketch6.addConstraint(Sketcher.Constraint("Horizontal", 0))
sketch6.addConstraint(Sketcher.Constraint("Horizontal", 2))
sketch6.addConstraint(Sketcher.Constraint("Vertical", 3))
sketch6.addConstraint(Sketcher.Constraint("Symmetric", 0, 2, 1, 2, -1))
sketch6.addConstraint(Sketcher.Constraint("DistanceY", 3, 2, 3, 1, Q("82 mm")))
sketch6.addConstraint(Sketcher.Constraint("DistanceX", -1, 1, 0, 2, Q("3 mm")))
sketch6.addConstraint(Sketcher.Constraint("Radius", 1, Q("212.125 mm")))
sketch6.addConstraint(Sketcher.Constraint("DistanceX", 0, 2, 0, 1, Q("7.517062 mm")))
sketch6.setExpression("Constraints[8]", "Params.sketch6_height")
pocket5 = body.newObject("PartDesign::Pocket", "Pocket004")
pocket5.Profile = sketch6
pocket5.setExpression("Length", "Params.pocket5_length")
pocket5.Midplane = True

doc.recompute()
